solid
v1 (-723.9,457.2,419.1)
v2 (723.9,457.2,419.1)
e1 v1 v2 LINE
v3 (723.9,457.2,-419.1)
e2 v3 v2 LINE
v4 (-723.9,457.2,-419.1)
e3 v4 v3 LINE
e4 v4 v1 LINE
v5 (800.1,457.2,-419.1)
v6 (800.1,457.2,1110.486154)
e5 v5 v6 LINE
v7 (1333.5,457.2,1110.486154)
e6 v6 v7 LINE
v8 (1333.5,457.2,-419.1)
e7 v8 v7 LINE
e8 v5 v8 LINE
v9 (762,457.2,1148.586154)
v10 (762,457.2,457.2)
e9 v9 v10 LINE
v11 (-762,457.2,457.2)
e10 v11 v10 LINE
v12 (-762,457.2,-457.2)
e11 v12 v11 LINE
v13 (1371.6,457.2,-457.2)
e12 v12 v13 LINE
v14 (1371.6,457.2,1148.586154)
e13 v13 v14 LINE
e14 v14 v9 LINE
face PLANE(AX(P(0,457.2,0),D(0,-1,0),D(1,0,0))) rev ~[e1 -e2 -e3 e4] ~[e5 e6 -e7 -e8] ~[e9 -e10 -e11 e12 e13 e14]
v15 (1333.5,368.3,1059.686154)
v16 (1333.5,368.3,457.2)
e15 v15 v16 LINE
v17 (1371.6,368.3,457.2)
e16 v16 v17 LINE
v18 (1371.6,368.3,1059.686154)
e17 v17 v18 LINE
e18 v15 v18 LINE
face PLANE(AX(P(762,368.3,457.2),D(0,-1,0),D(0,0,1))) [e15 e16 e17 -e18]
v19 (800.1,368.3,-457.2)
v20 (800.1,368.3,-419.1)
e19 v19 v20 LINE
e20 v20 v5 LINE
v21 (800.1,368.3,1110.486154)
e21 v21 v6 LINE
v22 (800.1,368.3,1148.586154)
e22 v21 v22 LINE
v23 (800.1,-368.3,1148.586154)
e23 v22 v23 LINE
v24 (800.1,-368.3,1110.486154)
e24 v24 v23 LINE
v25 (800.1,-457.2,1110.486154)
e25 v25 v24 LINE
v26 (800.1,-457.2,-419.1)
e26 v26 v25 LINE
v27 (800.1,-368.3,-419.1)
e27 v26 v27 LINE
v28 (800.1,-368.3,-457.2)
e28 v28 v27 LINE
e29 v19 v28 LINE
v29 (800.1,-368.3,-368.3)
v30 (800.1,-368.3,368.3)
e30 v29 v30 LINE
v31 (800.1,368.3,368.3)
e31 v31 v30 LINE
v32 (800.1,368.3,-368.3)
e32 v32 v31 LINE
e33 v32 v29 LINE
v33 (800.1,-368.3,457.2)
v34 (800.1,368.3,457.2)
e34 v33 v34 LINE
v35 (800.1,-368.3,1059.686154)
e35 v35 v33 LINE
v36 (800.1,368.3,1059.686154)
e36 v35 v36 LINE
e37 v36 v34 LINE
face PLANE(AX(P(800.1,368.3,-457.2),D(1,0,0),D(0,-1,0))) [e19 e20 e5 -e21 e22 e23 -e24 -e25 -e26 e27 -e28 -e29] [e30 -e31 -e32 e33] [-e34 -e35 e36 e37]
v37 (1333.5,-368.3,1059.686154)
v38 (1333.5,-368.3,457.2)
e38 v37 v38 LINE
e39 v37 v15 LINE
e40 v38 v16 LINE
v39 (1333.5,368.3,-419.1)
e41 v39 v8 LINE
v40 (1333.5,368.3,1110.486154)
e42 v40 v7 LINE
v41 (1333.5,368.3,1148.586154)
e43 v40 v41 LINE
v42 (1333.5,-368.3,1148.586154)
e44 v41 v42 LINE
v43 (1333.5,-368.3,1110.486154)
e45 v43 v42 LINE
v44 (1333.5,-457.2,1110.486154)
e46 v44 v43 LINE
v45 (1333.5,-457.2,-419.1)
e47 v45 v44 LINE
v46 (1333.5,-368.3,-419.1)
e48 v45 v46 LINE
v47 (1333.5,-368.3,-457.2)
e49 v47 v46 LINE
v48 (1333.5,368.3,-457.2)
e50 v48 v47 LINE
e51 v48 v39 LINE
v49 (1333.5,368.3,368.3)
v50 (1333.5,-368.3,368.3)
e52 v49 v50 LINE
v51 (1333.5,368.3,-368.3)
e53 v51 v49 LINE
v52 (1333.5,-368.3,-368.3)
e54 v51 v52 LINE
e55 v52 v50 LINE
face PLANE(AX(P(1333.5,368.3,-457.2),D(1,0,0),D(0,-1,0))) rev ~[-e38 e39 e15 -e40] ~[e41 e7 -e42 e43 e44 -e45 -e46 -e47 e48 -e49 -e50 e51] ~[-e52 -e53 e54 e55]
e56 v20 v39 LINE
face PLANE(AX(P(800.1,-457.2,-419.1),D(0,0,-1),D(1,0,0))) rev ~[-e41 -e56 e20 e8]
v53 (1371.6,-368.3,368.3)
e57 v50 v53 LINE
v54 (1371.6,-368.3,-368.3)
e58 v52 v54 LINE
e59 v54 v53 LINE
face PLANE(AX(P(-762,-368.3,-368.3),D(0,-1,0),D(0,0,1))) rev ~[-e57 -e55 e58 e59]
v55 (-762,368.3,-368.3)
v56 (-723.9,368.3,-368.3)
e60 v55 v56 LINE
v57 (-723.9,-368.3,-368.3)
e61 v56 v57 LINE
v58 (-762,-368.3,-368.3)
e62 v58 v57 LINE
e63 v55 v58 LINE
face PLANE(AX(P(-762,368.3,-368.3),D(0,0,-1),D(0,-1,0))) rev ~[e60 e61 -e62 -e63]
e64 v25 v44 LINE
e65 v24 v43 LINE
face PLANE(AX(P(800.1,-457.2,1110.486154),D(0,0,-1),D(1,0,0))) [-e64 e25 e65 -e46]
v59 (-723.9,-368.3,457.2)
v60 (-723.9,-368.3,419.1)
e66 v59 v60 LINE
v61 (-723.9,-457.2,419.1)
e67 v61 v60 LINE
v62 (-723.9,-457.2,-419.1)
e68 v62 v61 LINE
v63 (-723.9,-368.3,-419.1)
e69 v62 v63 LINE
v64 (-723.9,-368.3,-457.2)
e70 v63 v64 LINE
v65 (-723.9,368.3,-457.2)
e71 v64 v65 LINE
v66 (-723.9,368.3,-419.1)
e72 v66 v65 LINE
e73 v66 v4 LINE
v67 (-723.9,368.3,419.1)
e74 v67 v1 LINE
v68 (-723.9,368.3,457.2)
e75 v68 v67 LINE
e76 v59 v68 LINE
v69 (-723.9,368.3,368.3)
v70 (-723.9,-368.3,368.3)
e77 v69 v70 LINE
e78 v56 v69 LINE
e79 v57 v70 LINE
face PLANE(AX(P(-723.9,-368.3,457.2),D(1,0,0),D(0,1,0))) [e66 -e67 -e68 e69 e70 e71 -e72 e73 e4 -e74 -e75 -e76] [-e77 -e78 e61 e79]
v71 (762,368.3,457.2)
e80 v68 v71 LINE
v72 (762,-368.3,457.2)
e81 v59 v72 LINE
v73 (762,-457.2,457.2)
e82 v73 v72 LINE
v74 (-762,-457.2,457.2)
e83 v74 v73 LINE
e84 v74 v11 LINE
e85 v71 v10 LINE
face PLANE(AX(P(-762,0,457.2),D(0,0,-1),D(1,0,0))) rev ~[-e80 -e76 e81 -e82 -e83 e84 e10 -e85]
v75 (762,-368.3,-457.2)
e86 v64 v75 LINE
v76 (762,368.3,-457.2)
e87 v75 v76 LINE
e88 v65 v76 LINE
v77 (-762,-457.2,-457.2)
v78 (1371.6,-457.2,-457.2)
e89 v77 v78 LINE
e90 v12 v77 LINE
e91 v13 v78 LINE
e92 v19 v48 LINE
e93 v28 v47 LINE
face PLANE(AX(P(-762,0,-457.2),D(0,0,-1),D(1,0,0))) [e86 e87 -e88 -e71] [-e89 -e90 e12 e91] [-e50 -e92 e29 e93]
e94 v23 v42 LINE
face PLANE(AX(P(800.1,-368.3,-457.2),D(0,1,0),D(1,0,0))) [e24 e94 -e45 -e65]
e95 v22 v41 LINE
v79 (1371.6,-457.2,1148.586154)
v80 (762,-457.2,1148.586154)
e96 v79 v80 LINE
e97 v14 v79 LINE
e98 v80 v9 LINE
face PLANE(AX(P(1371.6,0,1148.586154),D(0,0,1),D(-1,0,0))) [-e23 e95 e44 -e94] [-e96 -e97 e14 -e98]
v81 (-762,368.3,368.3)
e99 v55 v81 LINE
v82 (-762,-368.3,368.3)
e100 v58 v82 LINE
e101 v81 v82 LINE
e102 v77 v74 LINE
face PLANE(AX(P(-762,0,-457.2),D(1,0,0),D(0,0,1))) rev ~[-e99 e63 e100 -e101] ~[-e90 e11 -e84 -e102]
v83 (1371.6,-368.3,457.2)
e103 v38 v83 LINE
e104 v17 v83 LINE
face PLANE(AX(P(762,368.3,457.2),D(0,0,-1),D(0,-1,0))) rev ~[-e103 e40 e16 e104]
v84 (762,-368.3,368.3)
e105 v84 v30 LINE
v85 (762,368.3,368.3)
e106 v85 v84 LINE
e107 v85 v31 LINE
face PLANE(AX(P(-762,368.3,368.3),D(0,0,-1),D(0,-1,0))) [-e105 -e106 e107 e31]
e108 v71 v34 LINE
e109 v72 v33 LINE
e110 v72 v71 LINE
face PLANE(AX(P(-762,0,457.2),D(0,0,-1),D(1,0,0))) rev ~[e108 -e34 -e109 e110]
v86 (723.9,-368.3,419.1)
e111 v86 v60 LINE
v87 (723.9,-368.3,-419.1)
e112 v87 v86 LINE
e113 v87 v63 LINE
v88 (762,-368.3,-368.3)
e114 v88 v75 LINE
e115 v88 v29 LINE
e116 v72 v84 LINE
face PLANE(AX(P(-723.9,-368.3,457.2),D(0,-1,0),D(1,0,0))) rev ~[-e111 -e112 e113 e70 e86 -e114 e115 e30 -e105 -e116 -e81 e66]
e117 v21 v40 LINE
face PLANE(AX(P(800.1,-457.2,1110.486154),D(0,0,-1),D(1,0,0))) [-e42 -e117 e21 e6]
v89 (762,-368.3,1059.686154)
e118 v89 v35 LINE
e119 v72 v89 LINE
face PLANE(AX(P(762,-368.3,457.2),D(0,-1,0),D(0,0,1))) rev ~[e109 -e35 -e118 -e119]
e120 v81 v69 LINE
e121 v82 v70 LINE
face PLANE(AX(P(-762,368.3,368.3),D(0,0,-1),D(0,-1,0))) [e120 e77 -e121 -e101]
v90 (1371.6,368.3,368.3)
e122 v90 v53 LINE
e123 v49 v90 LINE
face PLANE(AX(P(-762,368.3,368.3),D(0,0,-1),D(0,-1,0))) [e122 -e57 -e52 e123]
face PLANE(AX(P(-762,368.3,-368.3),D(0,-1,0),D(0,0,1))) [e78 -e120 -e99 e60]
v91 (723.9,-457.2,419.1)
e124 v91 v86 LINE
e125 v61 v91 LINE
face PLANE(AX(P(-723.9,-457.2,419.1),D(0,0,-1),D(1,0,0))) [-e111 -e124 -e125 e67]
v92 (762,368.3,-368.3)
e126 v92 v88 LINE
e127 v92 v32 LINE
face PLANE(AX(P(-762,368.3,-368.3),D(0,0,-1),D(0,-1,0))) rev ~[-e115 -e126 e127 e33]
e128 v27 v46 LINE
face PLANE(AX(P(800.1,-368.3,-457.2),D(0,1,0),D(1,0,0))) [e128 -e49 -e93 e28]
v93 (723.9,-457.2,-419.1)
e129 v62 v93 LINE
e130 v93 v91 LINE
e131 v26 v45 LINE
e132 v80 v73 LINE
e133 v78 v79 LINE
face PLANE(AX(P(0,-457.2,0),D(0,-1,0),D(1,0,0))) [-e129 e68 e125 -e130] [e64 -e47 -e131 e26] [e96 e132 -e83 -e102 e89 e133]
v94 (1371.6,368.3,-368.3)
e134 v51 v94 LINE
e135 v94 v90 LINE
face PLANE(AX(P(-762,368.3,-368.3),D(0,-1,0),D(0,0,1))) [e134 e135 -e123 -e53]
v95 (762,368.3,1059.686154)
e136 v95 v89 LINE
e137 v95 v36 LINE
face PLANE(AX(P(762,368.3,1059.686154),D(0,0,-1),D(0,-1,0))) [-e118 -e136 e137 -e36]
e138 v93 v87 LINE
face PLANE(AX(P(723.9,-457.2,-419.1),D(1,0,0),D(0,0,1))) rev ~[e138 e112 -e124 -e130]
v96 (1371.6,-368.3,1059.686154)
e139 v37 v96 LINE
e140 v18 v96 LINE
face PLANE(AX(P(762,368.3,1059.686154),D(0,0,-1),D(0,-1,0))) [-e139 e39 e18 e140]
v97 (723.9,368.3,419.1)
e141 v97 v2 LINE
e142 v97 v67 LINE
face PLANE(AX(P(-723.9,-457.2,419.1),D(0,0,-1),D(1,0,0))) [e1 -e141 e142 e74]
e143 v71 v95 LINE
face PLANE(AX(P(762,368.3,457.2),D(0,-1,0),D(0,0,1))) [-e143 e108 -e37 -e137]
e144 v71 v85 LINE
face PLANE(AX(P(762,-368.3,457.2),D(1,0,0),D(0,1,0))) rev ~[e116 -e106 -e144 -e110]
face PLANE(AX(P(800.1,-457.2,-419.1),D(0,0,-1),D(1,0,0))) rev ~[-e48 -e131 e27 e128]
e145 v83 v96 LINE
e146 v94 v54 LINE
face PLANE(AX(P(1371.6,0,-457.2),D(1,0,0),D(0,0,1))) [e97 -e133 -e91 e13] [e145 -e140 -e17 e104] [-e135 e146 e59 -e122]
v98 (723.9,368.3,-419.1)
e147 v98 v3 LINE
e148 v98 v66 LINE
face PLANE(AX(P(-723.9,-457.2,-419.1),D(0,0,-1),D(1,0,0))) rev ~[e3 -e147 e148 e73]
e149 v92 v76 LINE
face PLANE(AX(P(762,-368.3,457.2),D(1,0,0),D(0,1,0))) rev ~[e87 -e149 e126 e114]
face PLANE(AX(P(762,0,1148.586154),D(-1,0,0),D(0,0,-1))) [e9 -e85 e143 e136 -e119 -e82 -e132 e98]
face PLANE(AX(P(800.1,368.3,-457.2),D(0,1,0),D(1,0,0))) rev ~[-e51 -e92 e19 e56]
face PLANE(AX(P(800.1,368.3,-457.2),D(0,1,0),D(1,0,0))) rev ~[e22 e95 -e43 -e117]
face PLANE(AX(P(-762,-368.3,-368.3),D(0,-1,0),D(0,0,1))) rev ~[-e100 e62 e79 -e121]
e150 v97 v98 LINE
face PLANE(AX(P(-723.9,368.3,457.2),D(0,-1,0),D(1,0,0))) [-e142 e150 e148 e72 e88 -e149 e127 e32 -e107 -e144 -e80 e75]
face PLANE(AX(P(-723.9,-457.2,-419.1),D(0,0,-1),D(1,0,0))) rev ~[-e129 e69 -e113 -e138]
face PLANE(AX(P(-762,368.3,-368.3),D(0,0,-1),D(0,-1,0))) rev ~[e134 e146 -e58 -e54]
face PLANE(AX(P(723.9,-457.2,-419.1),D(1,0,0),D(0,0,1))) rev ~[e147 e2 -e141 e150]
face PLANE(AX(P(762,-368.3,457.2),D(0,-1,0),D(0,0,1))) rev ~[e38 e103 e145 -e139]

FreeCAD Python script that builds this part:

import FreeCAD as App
import Part
import Sketcher
from FreeCAD import Vector
Q = App.Units.Quantity


def add_polygon(sketch, points):
    """Adds a closed chain of lines whose ends are joined by coincident constraints."""
    first, n = sketch.GeometryCount, len(points)
    for a, b in zip(points, points[1:] + points[:1]):
        sketch.addGeometry(Part.LineSegment(App.Vector(*a, 0), App.Vector(*b, 0)), False)
    for i in range(n):
        sketch.addConstraint(Sketcher.Constraint("Coincident", first + i, 2, first + (i + 1) % n, 1))

doc = App.newDocument("Part")
body = doc.addObject("PartDesign::Body", "Body")

sketch1 = doc.addObject("Sketcher::SketchObject", "Sketch")
body.addObject(sketch1)
sketch1.AttachmentSupport = (doc.XZ_Plane, [""])
sketch1.MapMode = "FlatFace"
add_polygon(sketch1, [(-762, 457), (-762, -457), (1372, -457), (1372, 1149), (762, 1149), (762, 457)])
sketch1.addConstraint([
    Sketcher.Constraint("Vertical", 0),
    Sketcher.Constraint("Horizontal", 1),
    Sketcher.Constraint("Vertical", 2),
    Sketcher.Constraint("Horizontal", 3),
    Sketcher.Constraint("Vertical", 4),
    Sketcher.Constraint("Horizontal", 5),
    Sketcher.Constraint("Symmetric", 0, 2, 4, 2, -1, 1),
    Sketcher.Constraint("DistanceX", 1, 1, 1, 2, Q("84 in")),
    Sketcher.Constraint("DistanceX", 3, 2, 3, 1, Q("24 in")),
    Sketcher.Constraint("DistanceY", 0, 2, 0, 1, Q("36 in")),
    Sketcher.Constraint("DistanceY", 2, 1, 2, 2, 1605.786154),
])
pad1 = doc.addObject("PartDesign::Pad", "Pad")
body.addObject(pad1)
pad1.Profile = sketch1
pad1.Length = Q("36 in")
pad1.Midplane = True

sketch2 = doc.addObject("Sketcher::SketchObject", "Sketch001")
body.addObject(sketch2)
sketch2.AttachmentSupport = (doc.YZ_Plane, [""])
sketch2.MapMode = "FlatFace"
sketch2.AttachmentOffset = App.Placement(Vector(0, 0, -30 * 25.4), App.Rotation())
add_polygon(sketch2, [(368, 368), (368, -368), (-368, -368), (-368, 368)])
sketch2.addConstraint([
    Sketcher.Constraint("Vertical", 0),
    Sketcher.Constraint("Horizontal", 1),
    Sketcher.Constraint("Vertical", 2),
    Sketcher.Constraint("Horizontal", 3),
    Sketcher.Constraint("Symmetric", 0, 2, 2, 2, -1, 1),
    Sketcher.Constraint("Equal", 3, 0),
    Sketcher.Constraint("DistanceX", 1, 2, 1, 1, Q("29 in")),
])
pocket1 = doc.addObject("PartDesign::Pocket", "Pocket")
body.addObject(pocket1)
pocket1.Profile = sketch2
pocket1.Type = "ThroughAll"
pocket1.Reversed = True

sketch3 = doc.addObject("Sketcher::SketchObject", "Sketch002")
body.addObject(sketch3)
sketch3.AttachmentSupport = (doc.XZ_Plane, [""])
sketch3.MapMode = "FlatFace"
sketch3.AttachmentOffset = App.Placement(Vector(0, 0, 18 * 25.4), App.Rotation())
add_polygon(sketch3, [(-724, 419), (-724, -419), (724, -419), (724, 419)])
add_polygon(sketch3, [(800, 1110), (800, -419), (1334, -419), (1334, 1110)])
sketch3.addConstraint([
    Sketcher.Constraint("Vertical", 0),
    Sketcher.Constraint("Horizontal", 1),
    Sketcher.Constraint("Vertical", 2),
    Sketcher.Constraint("Horizontal", 3),
    Sketcher.Constraint("Vertical", 4),
    Sketcher.Constraint("Horizontal", 5),
    Sketcher.Constraint("Vertical", 6),
    Sketcher.Constraint("Horizontal", 7),
    Sketcher.Constraint("Symmetric", 0, 2, 2, 2, -1, 1),
    Sketcher.Constraint("Horizontal", 1, 2, 4, 2),
    Sketcher.Constraint("DistanceX", 1, 1, 1, 2, Q("57 in")),
    Sketcher.Constraint("DistanceX", 5, 1, 5, 2, Q("21 in")),
    Sketcher.Constraint("DistanceY", 0, 2, 0, 1, Q("33 in")),
    Sketcher.Constraint("DistanceX", 1, 2, 4, 2, Q("3 in")),
    Sketcher.Constraint("DistanceY", 4, 2, 4, 1, 1529.586154),
])
pocket2 = doc.addObject("PartDesign::Pocket", "Pocket001")
body.addObject(pocket2)
pocket2.Profile = sketch3
pocket2.Type = "ThroughAll"

sketch4 = doc.addObject("Sketcher::SketchObject", "Sketch003")
body.addObject(sketch4)
sketch4.AttachmentSupport = (doc.YZ_Plane, [""])
sketch4.MapMode = "FlatFace"
sketch4.AttachmentOffset = App.Placement(Vector(0, 0, 30 * 25.4), App.Rotation())
add_polygon(sketch4, [(368, 1060), (368, 457), (-368, 457), (-368, 1060)])
sketch4.addConstraint([
    Sketcher.Constraint("Vertical", 0),
    Sketcher.Constraint("Horizontal", 1),
    Sketcher.Constraint("Vertical", 2),
    Sketcher.Constraint("Horizontal", 3),
    Sketcher.Constraint("DistanceX", 1, 2, 1, 1, Q("29 in")),
    Sketcher.Constraint("DistanceY", -1, 1, 0, 2, Q("18 in")),
    Sketcher.Constraint("DistanceX", -1, 1, 0, 2, Q("14.5 in")),
    Sketcher.Constraint("DistanceY", 0, 2, 0, 1, 602.486154),
])
pocket3 = doc.addObject("PartDesign::Pocket", "Pocket002")
body.addObject(pocket3)
pocket3.Profile = sketch4
pocket3.Type = "ThroughAll"
pocket3.Reversed = True

sketch5 = doc.addObject("Sketcher::SketchObject", "Sketch004")
body.addObject(sketch5)
sketch5.AttachmentSupport = (doc.XY_Plane, [""])
sketch5.MapMode = "FlatFace"
sketch5.AttachmentOffset = App.Placement(Vector(0, 0, 18 * 25.4), App.Rotation())
add_polygon(sketch5, [(-724, 368), (-724, -368), (762, -368), (762, 368)])
sketch5.addConstraint([
    Sketcher.Constraint("Vertical", 0),
    Sketcher.Constraint("Horizontal", 1),
    Sketcher.Constraint("Vertical", 2),
    Sketcher.Constraint("Horizontal", 3),
    Sketcher.Constraint("DistanceY", 0, 2, 0, 1, Q("29 in")),
    Sketcher.Constraint("DistanceX", 1, 1, 1, 2, Q("58.5 in")),
    Sketcher.Constraint("DistanceX", -1, 1, 1, 2, Q("30 in")),
    Sketcher.Constraint("DistanceY", 0, 2, -1, 1, Q("14.5 in")),
])
pocket4 = doc.addObject("PartDesign::Pocket", "Pocket003")
body.addObject(pocket4)
pocket4.Profile = sketch5
pocket4.Type = "ThroughAll"

sketch6 = doc.addObject("Sketcher::SketchObject", "Sketch005")
body.addObject(sketch6)
sketch6.AttachmentSupport = (doc.XY_Plane, [""])
sketch6.MapMode = "FlatFace"
sketch6.AttachmentOffset = App.Placement(Vector(0, 0, 18 * 25.4), App.Rotation())
add_polygon(sketch6, [(-724, 368), (-724, -368), (762, -368), (762, 368)])
sketch6.addConstraint([
    Sketcher.Constraint("Vertical", 0),
    Sketcher.Constraint("Horizontal", 1),
    Sketcher.Constraint("Vertical", 2),
    Sketcher.Constraint("Horizontal", 3),
    Sketcher.Constraint("DistanceY", 0, 2, 0, 1, Q("29 in")),
    Sketcher.Constraint("DistanceX", 1, 1, 1, 2, Q("58.5 in")),
    Sketcher.Constraint("DistanceX", -1, 1, 1, 2, Q("30 in")),
    Sketcher.Constraint("DistanceY", 0, 2, -1, 1, Q("14.5 in")),
])
pocket5 = doc.addObject("PartDesign::Pocket", "Pocket004")
body.addObject(pocket5)
pocket5.Profile = sketch6
pocket5.Type = "ThroughAll"

sketch7 = doc.addObject("Sketcher::SketchObject", "Sketch006")
body.addObject(sketch7)
sketch7.AttachmentSupport = (doc.XY_Plane, [""])
sketch7.MapMode = "FlatFace"
sketch7.AttachmentOffset = App.Placement(Vector(0, 0, -18 * 25.4), App.Rotation())
add_polygon(sketch7, [(800, -368), (800, 368), (1334, 368), (1334, -368)])
sketch7.addConstraint([
    Sketcher.Constraint("Vertical", 0),
    Sketcher.Constraint("Horizontal", 1),
    Sketcher.Constraint("Vertical", 2),
    Sketcher.Constraint("Horizontal", 3),
    Sketcher.Constraint("DistanceX", 1, 1, 1, 2, Q("21 in")),
    Sketcher.Constraint("DistanceY", 0, 1, 0, 2, Q("29 in")),
    Sketcher.Constraint("DistanceX", -1, 1, 0, 2, Q("31.5 in")),
    Sketcher.Constraint("DistanceY", -1, 1, 0, 2, Q("14.5 in")),
])
pocket6 = doc.addObject("PartDesign::Pocket", "Pocket005")
body.addObject(pocket6)
pocket6.Profile = sketch7
pocket6.Type = "ThroughAll"
pocket6.Reversed = True

doc.recompute()
